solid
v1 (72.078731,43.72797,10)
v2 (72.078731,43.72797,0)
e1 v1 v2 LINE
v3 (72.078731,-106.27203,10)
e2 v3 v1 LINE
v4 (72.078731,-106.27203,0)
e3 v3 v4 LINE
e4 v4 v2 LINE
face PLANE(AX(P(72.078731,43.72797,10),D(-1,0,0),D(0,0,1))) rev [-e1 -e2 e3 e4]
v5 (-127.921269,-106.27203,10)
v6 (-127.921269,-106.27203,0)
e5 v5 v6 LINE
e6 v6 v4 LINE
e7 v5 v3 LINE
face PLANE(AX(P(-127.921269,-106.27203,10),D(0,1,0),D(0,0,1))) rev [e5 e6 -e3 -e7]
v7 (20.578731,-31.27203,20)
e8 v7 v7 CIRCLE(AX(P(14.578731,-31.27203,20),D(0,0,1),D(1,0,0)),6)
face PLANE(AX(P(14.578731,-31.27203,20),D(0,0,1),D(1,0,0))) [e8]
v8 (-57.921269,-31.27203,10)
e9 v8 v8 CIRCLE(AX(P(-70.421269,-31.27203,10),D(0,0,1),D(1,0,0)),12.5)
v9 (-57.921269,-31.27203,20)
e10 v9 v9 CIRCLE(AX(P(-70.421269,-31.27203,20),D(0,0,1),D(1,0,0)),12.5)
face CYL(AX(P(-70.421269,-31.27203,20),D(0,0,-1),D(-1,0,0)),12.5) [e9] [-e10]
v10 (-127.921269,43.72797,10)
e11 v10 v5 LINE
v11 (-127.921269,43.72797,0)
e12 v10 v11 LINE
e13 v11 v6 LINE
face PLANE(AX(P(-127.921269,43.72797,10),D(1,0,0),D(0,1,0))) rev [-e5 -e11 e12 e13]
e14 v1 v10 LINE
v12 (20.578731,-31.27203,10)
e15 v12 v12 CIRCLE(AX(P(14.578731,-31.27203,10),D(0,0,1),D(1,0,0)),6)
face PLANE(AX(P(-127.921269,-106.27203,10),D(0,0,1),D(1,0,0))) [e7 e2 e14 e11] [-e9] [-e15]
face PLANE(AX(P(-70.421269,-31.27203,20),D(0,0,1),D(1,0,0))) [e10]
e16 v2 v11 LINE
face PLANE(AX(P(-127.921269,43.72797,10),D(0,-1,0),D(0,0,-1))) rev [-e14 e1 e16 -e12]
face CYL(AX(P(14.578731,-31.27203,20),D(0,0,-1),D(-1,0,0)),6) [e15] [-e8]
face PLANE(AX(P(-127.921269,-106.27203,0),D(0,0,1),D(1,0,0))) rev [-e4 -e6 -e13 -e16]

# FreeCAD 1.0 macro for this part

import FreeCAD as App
import Part
import Sketcher
from FreeCAD import Vector
Q = App.Units.Quantity


def add_polygon(sketch, points):
    """Adds a closed chain of lines whose ends are joined by coincident constraints."""
    first, n = sketch.GeometryCount, len(points)
    for a, b in zip(points, points[1:] + points[:1]):
        sketch.addGeometry(Part.LineSegment(App.Vector(*a, 0), App.Vector(*b, 0)), False)
    for i in range(n):
        sketch.addConstraint(Sketcher.Constraint("Coincident", first + i, 2, first + (i + 1) % n, 1))

doc = App.newDocument("Part")
body = doc.addObject("PartDesign::Body", "Body")

# Sketch on XY plane
sketch1 = doc.addObject("Sketcher::SketchObject", "Sketch")
body.addObject(sketch1)
sketch1.AttachmentSupport = (doc.XY_Plane, [""])
sketch1.MapMode = "FlatFace"
add_polygon(sketch1, [(-128, 44), (-128, -106), (72, -106), (72, 44)])  # lines 0-3
sketch1.addConstraint([
    Sketcher.Constraint("Vertical", 0),
    Sketcher.Constraint("Horizontal", 1),
    Sketcher.Constraint("Vertical", 2),
    Sketcher.Constraint("Horizontal", 3),
    Sketcher.Constraint("DistanceX", 1, 1, 1, 2, Q("200 mm")),
    Sketcher.Constraint("DistanceY", 0, 2, 0, 1, Q("150 mm")),
    Sketcher.Constraint("DistanceX", 0, 2, -1, 1, Q("127.921269 mm")),
    Sketcher.Constraint("DistanceY", 0, 2, -1, 1, Q("106.27203 mm")),
])
pad1 = doc.addObject("PartDesign::Pad", "Pad")
body.addObject(pad1)
pad1.Profile = sketch1
pad1.Length = 10

# Sketch on XY plane
sketch2 = doc.addObject("Sketcher::SketchObject", "Sketch001")
body.addObject(sketch2)
sketch2.AttachmentSupport = (doc.XY_Plane, [""])
sketch2.MapMode = "FlatFace"
sketch2.AttachmentOffset = App.Placement(Vector(0, 0, 10), App.Rotation())
sketch2.addGeometry([
    Part.Circle(Vector(-70, -31, 0), Vector(0, 0, 1), 12),
    Part.Circle(Vector(15, -31, 0), Vector(0, 0, 1), 6),
], False)
sketch2.addConstraint([
    Sketcher.Constraint("Horizontal", 0, 3, 1, 3),
    Sketcher.Constraint("Diameter", 0, Q("25 mm")),
    Sketcher.Constraint("Diameter", 1, Q("12 mm")),
    Sketcher.Constraint("DistanceX", 0, 3, 1, 3, Q("85 mm")),
    Sketcher.Constraint("DistanceX", 0, 3, -1, 1, Q("70.421269 mm")),
    Sketcher.Constraint("DistanceY", 0, 3, -1, 1, Q("31.27203 mm")),
])
pad2 = doc.addObject("PartDesign::Pad", "Pad001")
body.addObject(pad2)
pad2.Profile = sketch2
pad2.Length = 10

doc.recompute()
